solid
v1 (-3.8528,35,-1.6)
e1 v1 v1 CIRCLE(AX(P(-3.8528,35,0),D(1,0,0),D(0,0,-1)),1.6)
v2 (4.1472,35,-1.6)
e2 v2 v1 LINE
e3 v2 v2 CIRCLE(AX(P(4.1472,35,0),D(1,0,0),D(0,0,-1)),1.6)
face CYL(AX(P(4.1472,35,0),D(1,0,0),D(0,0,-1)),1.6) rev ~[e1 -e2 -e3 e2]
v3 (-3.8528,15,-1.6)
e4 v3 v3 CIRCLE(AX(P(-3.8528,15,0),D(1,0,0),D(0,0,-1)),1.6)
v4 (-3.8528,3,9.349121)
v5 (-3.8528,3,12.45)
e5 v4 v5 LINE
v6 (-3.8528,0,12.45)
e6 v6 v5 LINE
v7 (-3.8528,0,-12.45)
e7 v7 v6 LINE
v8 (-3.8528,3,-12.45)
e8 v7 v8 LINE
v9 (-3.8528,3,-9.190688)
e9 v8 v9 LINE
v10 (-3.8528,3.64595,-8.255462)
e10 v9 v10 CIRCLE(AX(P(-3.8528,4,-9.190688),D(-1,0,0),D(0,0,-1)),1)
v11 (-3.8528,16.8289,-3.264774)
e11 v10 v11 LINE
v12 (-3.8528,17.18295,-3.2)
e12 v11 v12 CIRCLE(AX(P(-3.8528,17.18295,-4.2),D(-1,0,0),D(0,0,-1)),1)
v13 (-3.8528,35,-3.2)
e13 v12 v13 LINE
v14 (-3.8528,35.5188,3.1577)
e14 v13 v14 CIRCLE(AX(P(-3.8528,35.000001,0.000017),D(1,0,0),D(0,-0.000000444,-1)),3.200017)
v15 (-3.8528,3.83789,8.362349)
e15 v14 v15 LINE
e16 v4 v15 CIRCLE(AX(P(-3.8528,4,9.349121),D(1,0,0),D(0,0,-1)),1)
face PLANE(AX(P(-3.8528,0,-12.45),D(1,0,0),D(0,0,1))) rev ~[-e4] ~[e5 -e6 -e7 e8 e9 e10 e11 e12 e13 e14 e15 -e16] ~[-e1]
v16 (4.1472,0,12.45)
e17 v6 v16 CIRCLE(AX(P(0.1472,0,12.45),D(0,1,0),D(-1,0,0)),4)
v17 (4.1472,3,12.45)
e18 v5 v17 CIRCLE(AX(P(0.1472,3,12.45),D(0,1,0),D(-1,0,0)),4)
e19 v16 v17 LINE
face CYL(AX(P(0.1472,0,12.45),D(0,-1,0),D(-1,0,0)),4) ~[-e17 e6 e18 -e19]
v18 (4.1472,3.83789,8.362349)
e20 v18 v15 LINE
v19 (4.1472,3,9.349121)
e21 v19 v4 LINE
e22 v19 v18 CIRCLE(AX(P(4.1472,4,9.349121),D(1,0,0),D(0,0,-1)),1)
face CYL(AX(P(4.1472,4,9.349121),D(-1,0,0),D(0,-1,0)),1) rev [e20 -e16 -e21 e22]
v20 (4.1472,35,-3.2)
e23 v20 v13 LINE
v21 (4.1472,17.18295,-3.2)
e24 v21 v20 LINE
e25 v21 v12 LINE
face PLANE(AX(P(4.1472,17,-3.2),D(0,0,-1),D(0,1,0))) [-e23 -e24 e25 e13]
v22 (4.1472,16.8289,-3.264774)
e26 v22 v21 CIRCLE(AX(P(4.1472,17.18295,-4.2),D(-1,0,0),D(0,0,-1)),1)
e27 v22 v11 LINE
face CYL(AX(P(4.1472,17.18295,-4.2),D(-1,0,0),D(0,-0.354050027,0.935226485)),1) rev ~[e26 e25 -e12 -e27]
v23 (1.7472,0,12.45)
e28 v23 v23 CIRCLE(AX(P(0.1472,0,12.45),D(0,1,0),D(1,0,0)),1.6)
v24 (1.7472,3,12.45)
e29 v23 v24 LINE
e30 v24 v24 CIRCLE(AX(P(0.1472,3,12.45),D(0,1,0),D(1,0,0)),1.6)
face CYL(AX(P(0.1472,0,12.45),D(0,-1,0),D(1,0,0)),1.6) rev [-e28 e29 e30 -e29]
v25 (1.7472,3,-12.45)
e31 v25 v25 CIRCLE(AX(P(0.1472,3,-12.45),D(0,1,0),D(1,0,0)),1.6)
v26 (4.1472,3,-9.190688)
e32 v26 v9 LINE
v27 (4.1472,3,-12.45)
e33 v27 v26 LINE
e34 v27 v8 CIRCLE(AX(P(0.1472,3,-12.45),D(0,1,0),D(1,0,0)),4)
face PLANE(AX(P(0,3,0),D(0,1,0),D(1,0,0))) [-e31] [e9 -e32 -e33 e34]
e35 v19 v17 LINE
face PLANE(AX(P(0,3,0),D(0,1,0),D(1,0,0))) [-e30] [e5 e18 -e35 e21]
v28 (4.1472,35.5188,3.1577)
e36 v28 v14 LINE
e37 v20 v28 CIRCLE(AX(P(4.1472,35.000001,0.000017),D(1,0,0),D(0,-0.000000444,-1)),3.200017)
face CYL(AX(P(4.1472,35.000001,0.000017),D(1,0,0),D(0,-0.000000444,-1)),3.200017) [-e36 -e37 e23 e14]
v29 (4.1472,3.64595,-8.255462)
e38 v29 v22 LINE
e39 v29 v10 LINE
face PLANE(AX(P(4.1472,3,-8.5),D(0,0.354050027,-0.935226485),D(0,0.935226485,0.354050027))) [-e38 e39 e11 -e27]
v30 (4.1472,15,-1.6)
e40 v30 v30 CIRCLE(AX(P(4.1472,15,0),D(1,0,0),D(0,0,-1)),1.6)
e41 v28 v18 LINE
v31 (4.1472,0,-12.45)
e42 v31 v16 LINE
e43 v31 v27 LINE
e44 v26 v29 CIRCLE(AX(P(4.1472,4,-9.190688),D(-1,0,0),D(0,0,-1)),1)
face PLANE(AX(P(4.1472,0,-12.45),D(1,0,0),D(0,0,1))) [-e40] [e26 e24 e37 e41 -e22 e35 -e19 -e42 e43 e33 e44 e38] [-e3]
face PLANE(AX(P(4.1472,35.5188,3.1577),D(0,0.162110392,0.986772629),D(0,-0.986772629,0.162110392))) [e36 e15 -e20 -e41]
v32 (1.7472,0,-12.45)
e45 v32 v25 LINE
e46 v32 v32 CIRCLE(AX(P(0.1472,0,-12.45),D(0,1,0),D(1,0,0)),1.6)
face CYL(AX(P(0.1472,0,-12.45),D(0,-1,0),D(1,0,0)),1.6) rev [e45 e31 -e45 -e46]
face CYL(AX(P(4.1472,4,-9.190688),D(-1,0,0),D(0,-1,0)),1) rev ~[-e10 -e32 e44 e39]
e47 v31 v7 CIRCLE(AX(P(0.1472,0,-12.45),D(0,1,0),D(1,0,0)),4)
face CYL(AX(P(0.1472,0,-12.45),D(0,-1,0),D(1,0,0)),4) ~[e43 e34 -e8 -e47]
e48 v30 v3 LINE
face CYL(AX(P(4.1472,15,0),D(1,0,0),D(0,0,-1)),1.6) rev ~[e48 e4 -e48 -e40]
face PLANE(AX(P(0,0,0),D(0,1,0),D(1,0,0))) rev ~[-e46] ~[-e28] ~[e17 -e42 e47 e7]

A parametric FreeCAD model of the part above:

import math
import FreeCAD as App
import Part
import Sketcher

V = App.Vector


def edges_at(feature, points):
    """Names of the edges that pass closest to the given points."""
    edges = feature.Shape.Edges
    near = lambda p: min(range(len(edges)), key=lambda i: edges[i].distToShape(Part.Vertex(*p))[0])
    return sorted({f"Edge{near(p) + 1}" for p in points})

doc = App.newDocument("Part")
body = doc.addObject("PartDesign::Body", "Body")

# Sketch on XZ plane
sketch1 = body.newObject("Sketcher::SketchObject", "Sketch")
sketch1.AttachmentSupport = (doc.getObject("XZ_Plane"), [""])
sketch1.MapMode = "FlatFace"
sketch1.addGeometry([
    Part.LineSegment(V(4.1, 12.4, 0), V(4.1, -12.4, 0)),  # 0
    Part.ArcOfCircle(Part.Circle(V(0.1, -12.4, 0), V(0, 0, 1), 4), math.radians(180), math.radians(360)),  # 1
    Part.LineSegment(V(-3.9, -12.4, 0), V(-3.9, 12.4, 0)),  # 2
    Part.ArcOfCircle(Part.Circle(V(0.1, 12.4, 0), V(0, 0, 1), 4), math.radians(0), math.radians(180)),  # 3
    Part.Circle(V(0.1, 12.4, 0), V(0, 0, 1), 1.6),  # 4
    Part.Circle(V(0.1, -12.4, 0), V(0, 0, 1), 1.6),  # 5
], False)
sketch1.addConstraint([
    Sketcher.Constraint("Tangent", 0, 2, 1, 2),
    Sketcher.Constraint("Tangent", 1, 1, 2, 1),
    Sketcher.Constraint("Tangent", 2, 2, 3, 2),
    Sketcher.Constraint("Tangent", 3, 1, 0, 1),
    Sketcher.Constraint("Vertical", 0),
    Sketcher.Constraint("Vertical", 2),
    Sketcher.Constraint("Coincident", 4, 3, 3, 3),
    Sketcher.Constraint("Coincident", 5, 3, 1, 3),
    Sketcher.Constraint("Equal", 4, 5),
    Sketcher.Constraint("Radius", 1, 4.0),
    Sketcher.Constraint("Diameter", 4, 3.2),
    Sketcher.Constraint("DistanceY", 0, 2, 0, 1, 24.9),
    Sketcher.Constraint("DistanceY", 1, 3, -1, 1, 12.45),
    Sketcher.Constraint("DistanceX", -1, 1, 1, 3, 0.1472),
])
pad1 = body.newObject("PartDesign::Pad", "Pad")
pad1.Profile = sketch1
pad1.Length = 3
pad1.Reversed = True

# Sketch on YZ plane
sketch2 = body.newObject("Sketcher::SketchObject", "Sketch001")
sketch2.AttachmentSupport = (doc.getObject("YZ_Plane"), [""])
sketch2.MapMode = "FlatFace"
sketch2.AttachmentOffset = App.Placement(V(0, 0, 4.1472), App.Rotation())
sketch2.addGeometry([
    Part.LineSegment(V(35.5, 3.2, 0), V(3, 8.5, 0)),  # 0
    Part.LineSegment(V(3, 8.5, 0), V(3, -8.5, 0)),  # 1
    Part.LineSegment(V(3, -8.5, 0), V(17, -3.2, 0)),  # 2
    Part.LineSegment(V(17, -3.2, 0), V(35, -3.2, 0)),  # 3
    Part.ArcOfCircle(Part.Circle(V(35, 0, 0), V(0, 0, 1), 3.2), math.radians(-90), math.radians(81)),  # 4
    Part.Circle(V(15, 0, 0), V(0, 0, 1), 1.6),  # 5
    Part.Circle(V(35, 0, 0), V(0, 0, 1), 1.6),  # 6
], False)
sketch2.addConstraint([
    Sketcher.Constraint("Coincident", 0, 2, 1, 1),
    Sketcher.Constraint("Coincident", 1, 2, 2, 1),
    Sketcher.Constraint("Coincident", 2, 2, 3, 1),
    Sketcher.Constraint("Tangent", 3, 2, 4, 1),
    Sketcher.Constraint("Tangent", 4, 2, 0, 1),
    Sketcher.Constraint("Vertical", 1),
    Sketcher.Constraint("Horizontal", 3),
    Sketcher.Constraint("Coincident", 6, 3, 4, 3),
    Sketcher.Constraint("Equal", 5, 6),
    Sketcher.Constraint("PointOnObject", 4, 3, -1),
    Sketcher.Constraint("PointOnObject", 5, 3, -1),
    Sketcher.Constraint("Diameter", 5, 3.2),
    Sketcher.Constraint("Radius", 4, 3.2),
    Sketcher.Constraint("DistanceX", 5, 3, 4, 3, 20.0),
    Sketcher.Constraint("DistanceX", 1, 2, 2, 2, 14.0),
    Sketcher.Constraint("DistanceY", -1, 1, 0, 2, 8.5),
    Sketcher.Constraint("DistanceY", 1, 2, -1, 1, 8.5),
    Sketcher.Constraint("DistanceX", 3, 1, 3, 2, 18.0),
    Sketcher.Constraint("DistanceX", -1, 1, 4, 3, 35.0),
])
pad2 = body.newObject("PartDesign::Pad", "Pad001")
pad2.Profile = sketch2
pad2.Length = 8
pad2.Reversed = True
doc.recompute()

fillet = body.newObject("PartDesign::Fillet", "Fillet")
fillet.Base = (pad2, edges_at(pad2, [(0.147, 17, -3.2), (0.147, 3, -8.5), (0.147, 3, 8.5)]))
fillet.Radius = 1

doc.recompute()
